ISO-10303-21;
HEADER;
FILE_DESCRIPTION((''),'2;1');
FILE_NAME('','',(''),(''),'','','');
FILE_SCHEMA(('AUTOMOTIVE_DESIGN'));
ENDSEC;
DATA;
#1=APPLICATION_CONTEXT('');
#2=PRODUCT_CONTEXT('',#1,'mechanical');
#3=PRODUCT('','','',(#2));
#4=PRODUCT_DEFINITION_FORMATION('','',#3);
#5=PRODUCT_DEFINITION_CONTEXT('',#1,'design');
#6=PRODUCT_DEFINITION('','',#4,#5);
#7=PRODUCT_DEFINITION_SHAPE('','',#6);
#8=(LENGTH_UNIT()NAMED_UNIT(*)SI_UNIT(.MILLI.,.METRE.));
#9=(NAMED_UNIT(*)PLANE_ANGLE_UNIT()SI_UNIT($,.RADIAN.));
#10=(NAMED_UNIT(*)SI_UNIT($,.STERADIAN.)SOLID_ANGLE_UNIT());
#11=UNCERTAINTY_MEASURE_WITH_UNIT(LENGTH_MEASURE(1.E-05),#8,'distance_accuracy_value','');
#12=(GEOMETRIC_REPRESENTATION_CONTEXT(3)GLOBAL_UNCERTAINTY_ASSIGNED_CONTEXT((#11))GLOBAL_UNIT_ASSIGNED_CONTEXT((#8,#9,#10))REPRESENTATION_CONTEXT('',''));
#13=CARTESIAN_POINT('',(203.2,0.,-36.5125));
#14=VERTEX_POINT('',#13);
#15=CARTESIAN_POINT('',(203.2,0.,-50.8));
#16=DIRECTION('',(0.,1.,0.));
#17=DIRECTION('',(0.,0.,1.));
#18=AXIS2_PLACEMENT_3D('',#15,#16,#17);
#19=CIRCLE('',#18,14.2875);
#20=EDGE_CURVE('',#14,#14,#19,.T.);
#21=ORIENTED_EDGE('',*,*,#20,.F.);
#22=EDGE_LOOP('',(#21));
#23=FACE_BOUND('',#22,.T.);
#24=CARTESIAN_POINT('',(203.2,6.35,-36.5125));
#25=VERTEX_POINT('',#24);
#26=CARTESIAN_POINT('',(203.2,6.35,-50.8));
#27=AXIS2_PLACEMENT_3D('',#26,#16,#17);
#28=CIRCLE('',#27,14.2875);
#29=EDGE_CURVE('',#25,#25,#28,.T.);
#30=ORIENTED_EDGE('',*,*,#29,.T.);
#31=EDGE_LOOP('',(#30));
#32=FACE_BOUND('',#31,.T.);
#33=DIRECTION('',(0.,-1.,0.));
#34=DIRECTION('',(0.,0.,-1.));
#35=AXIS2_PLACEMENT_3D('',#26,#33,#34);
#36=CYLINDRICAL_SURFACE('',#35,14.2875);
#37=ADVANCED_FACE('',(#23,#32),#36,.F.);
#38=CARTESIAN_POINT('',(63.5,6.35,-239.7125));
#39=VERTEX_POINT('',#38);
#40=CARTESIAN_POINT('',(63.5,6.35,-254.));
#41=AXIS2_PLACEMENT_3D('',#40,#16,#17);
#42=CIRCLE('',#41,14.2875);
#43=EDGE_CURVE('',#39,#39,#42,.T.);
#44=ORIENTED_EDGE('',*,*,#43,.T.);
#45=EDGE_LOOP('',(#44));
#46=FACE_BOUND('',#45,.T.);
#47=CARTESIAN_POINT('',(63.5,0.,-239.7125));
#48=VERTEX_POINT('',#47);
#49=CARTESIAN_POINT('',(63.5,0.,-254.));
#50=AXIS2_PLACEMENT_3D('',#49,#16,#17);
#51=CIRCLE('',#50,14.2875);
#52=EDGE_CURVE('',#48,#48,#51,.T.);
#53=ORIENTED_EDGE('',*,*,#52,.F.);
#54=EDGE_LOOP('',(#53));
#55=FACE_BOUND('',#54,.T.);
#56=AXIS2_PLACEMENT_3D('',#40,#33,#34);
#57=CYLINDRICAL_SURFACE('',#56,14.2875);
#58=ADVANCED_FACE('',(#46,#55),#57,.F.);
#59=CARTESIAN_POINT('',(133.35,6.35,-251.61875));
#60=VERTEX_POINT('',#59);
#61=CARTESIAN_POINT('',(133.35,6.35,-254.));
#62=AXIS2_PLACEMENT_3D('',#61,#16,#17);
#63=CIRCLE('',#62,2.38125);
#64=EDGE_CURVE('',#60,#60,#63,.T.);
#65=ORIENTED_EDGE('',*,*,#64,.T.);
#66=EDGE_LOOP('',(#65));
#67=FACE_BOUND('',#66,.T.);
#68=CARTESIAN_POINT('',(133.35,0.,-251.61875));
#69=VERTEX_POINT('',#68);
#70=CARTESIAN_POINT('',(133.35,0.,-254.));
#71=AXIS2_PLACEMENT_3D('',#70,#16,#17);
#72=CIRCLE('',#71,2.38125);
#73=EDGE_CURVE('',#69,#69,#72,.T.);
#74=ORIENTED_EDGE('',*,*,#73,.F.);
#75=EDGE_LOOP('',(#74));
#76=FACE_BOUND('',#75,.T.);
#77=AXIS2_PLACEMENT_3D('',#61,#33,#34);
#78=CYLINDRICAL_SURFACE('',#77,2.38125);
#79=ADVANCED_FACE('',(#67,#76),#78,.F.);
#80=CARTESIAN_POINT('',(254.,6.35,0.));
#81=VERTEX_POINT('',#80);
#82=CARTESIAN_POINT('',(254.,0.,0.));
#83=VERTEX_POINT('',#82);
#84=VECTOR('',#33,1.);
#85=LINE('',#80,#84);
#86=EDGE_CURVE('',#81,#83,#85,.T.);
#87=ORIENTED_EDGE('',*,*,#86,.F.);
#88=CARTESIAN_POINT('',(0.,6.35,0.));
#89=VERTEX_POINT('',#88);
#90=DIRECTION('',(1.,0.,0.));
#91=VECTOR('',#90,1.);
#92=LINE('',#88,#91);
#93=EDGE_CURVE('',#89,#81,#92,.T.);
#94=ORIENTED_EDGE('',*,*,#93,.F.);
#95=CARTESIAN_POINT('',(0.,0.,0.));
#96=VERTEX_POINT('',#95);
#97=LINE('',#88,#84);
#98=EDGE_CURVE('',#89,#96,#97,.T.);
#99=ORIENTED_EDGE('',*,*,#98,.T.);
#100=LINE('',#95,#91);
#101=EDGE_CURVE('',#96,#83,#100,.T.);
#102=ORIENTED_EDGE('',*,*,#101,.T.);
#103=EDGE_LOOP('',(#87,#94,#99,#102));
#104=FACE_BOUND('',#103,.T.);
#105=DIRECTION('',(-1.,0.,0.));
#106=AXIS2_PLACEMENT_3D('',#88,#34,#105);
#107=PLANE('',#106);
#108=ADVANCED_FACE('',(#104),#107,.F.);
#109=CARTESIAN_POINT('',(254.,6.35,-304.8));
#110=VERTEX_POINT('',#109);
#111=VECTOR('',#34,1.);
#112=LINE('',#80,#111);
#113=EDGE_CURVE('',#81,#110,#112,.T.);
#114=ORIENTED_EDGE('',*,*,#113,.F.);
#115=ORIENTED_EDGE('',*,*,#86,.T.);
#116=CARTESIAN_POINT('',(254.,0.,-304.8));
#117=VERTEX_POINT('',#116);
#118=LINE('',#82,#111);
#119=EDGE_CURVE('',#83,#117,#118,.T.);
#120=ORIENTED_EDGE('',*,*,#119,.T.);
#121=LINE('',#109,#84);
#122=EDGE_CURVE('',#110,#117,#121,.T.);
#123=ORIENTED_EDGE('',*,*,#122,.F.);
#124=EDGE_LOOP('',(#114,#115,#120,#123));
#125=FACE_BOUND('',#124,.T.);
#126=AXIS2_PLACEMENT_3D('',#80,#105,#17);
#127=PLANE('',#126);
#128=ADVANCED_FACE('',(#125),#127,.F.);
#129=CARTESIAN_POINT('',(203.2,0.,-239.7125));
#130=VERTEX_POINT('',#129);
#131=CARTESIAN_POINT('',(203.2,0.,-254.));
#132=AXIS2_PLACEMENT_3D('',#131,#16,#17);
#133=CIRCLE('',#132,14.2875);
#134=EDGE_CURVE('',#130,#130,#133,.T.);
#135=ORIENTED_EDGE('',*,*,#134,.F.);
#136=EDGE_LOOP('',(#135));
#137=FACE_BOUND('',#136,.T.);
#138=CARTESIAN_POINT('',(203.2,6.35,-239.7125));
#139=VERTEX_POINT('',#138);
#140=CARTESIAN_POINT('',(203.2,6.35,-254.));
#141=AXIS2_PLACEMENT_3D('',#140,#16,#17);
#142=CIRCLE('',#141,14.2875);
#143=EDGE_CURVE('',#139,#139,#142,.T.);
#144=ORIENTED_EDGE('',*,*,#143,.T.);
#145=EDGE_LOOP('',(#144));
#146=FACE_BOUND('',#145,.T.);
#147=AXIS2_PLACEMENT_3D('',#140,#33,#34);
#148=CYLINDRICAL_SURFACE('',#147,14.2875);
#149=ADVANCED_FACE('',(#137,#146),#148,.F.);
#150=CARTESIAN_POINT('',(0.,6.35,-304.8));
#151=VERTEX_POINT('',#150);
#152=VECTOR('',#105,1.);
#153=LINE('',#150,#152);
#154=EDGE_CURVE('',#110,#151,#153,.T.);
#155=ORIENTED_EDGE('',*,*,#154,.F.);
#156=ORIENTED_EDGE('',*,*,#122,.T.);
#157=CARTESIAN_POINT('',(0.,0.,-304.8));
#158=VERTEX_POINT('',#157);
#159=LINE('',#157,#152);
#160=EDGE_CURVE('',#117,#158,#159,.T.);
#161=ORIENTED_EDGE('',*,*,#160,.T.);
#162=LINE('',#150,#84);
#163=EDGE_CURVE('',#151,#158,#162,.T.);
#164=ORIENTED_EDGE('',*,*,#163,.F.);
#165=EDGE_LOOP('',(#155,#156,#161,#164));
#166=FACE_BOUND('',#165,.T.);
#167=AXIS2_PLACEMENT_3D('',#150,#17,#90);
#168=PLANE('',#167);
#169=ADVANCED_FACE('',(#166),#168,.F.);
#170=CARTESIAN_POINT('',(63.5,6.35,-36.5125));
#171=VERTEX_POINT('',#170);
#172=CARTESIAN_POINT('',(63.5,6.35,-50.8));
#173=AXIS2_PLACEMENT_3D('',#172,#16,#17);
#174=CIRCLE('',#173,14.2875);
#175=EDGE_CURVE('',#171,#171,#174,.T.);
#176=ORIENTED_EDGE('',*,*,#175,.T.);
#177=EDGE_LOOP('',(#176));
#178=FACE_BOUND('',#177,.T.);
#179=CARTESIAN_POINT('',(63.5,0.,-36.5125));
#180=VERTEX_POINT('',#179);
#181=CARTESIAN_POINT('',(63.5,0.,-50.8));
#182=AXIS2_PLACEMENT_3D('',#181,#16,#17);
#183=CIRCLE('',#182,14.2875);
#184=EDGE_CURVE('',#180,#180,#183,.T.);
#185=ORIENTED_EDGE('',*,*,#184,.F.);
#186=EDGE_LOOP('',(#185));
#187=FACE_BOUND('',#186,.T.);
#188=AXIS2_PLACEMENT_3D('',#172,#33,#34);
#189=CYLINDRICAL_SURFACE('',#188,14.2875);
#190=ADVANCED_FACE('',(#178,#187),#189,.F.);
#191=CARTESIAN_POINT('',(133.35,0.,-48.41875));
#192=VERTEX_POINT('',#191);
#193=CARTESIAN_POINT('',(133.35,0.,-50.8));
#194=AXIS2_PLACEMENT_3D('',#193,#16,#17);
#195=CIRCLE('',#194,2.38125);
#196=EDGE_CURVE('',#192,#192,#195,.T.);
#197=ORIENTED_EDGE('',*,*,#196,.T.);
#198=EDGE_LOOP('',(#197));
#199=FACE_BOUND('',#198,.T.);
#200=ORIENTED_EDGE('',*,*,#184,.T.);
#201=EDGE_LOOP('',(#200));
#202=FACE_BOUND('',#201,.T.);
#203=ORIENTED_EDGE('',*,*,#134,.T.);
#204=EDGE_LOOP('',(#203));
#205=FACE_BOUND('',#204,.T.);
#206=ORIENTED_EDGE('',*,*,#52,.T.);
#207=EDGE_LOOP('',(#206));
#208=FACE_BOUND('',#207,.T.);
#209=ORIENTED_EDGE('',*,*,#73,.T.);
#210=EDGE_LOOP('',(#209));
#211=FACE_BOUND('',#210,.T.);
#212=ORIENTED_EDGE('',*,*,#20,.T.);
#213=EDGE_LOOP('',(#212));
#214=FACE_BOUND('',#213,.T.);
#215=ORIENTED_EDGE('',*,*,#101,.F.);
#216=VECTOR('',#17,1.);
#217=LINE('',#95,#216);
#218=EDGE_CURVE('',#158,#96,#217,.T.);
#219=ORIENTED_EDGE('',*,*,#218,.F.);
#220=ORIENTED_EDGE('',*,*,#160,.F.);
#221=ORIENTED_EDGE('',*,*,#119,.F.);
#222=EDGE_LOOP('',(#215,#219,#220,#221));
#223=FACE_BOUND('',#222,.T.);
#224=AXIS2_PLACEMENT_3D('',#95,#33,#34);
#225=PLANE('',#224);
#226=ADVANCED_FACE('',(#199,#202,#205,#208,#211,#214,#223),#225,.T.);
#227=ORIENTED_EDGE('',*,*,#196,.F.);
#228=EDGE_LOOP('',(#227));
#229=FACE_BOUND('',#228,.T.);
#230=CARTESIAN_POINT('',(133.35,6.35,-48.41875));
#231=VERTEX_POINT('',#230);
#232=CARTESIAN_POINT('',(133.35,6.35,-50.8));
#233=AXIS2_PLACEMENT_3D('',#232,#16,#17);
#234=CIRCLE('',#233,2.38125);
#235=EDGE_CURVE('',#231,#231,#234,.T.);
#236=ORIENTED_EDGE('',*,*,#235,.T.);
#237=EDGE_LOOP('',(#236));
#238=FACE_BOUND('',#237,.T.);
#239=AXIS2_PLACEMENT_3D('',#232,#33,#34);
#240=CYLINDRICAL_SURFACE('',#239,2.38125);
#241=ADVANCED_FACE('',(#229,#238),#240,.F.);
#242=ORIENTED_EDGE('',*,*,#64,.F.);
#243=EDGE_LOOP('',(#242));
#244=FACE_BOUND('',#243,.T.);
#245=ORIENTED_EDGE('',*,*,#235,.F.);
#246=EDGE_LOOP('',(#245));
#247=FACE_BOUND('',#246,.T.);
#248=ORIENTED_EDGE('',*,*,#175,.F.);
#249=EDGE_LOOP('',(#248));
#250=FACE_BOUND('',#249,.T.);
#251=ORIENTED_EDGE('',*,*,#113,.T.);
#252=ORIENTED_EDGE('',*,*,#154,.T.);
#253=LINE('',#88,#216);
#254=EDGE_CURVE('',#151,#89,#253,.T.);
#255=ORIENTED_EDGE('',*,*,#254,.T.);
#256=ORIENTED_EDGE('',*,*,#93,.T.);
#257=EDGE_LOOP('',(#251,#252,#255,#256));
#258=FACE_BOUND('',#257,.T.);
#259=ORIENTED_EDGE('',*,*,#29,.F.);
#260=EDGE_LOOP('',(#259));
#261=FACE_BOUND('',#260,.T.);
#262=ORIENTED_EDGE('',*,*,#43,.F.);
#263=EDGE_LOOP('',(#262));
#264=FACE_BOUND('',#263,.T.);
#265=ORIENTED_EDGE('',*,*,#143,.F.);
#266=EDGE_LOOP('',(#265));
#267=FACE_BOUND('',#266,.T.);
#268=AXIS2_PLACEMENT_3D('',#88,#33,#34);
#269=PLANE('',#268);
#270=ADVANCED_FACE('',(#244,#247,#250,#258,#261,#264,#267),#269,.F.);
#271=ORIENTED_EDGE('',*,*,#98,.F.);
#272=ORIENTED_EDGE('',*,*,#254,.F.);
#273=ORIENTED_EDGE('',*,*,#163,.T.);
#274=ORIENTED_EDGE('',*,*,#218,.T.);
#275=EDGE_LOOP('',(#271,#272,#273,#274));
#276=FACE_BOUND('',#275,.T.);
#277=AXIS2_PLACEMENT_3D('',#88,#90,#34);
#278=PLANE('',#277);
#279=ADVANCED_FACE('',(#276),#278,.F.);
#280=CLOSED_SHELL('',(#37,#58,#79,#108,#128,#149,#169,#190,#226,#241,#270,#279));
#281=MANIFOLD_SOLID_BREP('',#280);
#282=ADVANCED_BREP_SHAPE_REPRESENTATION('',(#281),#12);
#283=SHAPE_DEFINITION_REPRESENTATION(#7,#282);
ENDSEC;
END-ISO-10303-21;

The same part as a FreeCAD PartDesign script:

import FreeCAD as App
import Part
import Sketcher
from FreeCAD import Vector
Q = App.Units.Quantity


def add_polygon(sketch, points):
    """Adds a closed chain of lines whose ends are joined by coincident constraints."""
    first, n = sketch.GeometryCount, len(points)
    for a, b in zip(points, points[1:] + points[:1]):
        sketch.addGeometry(Part.LineSegment(App.Vector(*a, 0), App.Vector(*b, 0)), False)
    for i in range(n):
        sketch.addConstraint(Sketcher.Constraint("Coincident", first + i, 2, first + (i + 1) % n, 1))

doc = App.newDocument("Part")
body = doc.addObject("PartDesign::Body", "Body")

sketch1 = body.newObject("Sketcher::SketchObject", "Sketch")
sketch1.AttachmentSupport = (doc.getObject("XZ_Plane"), [""])
sketch1.MapMode = "FlatFace"
add_polygon(sketch1, [(0, -304.8), (0, 0), (254, 0), (254, -304.8)])
sketch1.addGeometry(Part.Circle(Vector(63.5, -50.8, 0), Vector(0, 0, 1), 14.2875), False)
sketch1.addGeometry(Part.Circle(Vector(133.35, -50.8, 0), Vector(0, 0, 1), 2.38125), False)
sketch1.addGeometry(Part.Circle(Vector(203.2, -50.8, 0), Vector(0, 0, 1), 14.2875), False)
sketch1.addGeometry(Part.Circle(Vector(63.5, -254, 0), Vector(0, 0, 1), 14.2875), False)
sketch1.addGeometry(Part.Circle(Vector(133.35, -254, 0), Vector(0, 0, 1), 2.38125), False)
sketch1.addGeometry(Part.Circle(Vector(203.2, -254, 0), Vector(0, 0, 1), 14.2875), False)
sketch1.addConstraint([
    Sketcher.Constraint("Vertical", 0),
    Sketcher.Constraint("Horizontal", 1),
    Sketcher.Constraint("Vertical", 2),
    Sketcher.Constraint("Horizontal", 3),
    Sketcher.Constraint("Coincident", 0, 2, -1, 1),
    Sketcher.Constraint("Equal", 4, 6),
    Sketcher.Constraint("Equal", 6, 7),
    Sketcher.Constraint("Equal", 5, 8),
    Sketcher.Constraint("Equal", 7, 9),
    Sketcher.Constraint("Horizontal", 4, 3, 5, 3),
    Sketcher.Constraint("Horizontal", 5, 3, 6, 3),
    Sketcher.Constraint("Horizontal", 7, 3, 8, 3),
    Sketcher.Constraint("Horizontal", 8, 3, 9, 3),
    Sketcher.Constraint("Vertical", 4, 3, 7, 3),
    Sketcher.Constraint("Vertical", 5, 3, 8, 3),
    Sketcher.Constraint("Vertical", 6, 3, 9, 3),
    Sketcher.Constraint("DistanceX", 1, 1, 1, 2, Q("10 in")),
    Sketcher.Constraint("DistanceY", 0, 1, 0, 2, Q("12 in")),
    Sketcher.Constraint("Diameter", 4, Q("1.125 in")),
    Sketcher.Constraint("Diameter", 5, Q("0.1875 in")),
    Sketcher.Constraint("DistanceY", 4, 3, -1, 1, Q("2 in")),
    Sketcher.Constraint("DistanceX", -1, 1, 6, 3, Q("8 in")),
    Sketcher.Constraint("DistanceY", 7, 3, -1, 1, Q("10 in")),
    Sketcher.Constraint("DistanceX", -1, 1, 4, 3, Q("2.5 in")),
    Sketcher.Constraint("DistanceX", -1, 1, 5, 3, Q("5.25 in")),
])
pad1 = body.newObject("PartDesign::Pad", "Pad")
pad1.Profile = sketch1
pad1.Length = Q("0.25 in")
pad1.Reversed = True

doc.recompute()
